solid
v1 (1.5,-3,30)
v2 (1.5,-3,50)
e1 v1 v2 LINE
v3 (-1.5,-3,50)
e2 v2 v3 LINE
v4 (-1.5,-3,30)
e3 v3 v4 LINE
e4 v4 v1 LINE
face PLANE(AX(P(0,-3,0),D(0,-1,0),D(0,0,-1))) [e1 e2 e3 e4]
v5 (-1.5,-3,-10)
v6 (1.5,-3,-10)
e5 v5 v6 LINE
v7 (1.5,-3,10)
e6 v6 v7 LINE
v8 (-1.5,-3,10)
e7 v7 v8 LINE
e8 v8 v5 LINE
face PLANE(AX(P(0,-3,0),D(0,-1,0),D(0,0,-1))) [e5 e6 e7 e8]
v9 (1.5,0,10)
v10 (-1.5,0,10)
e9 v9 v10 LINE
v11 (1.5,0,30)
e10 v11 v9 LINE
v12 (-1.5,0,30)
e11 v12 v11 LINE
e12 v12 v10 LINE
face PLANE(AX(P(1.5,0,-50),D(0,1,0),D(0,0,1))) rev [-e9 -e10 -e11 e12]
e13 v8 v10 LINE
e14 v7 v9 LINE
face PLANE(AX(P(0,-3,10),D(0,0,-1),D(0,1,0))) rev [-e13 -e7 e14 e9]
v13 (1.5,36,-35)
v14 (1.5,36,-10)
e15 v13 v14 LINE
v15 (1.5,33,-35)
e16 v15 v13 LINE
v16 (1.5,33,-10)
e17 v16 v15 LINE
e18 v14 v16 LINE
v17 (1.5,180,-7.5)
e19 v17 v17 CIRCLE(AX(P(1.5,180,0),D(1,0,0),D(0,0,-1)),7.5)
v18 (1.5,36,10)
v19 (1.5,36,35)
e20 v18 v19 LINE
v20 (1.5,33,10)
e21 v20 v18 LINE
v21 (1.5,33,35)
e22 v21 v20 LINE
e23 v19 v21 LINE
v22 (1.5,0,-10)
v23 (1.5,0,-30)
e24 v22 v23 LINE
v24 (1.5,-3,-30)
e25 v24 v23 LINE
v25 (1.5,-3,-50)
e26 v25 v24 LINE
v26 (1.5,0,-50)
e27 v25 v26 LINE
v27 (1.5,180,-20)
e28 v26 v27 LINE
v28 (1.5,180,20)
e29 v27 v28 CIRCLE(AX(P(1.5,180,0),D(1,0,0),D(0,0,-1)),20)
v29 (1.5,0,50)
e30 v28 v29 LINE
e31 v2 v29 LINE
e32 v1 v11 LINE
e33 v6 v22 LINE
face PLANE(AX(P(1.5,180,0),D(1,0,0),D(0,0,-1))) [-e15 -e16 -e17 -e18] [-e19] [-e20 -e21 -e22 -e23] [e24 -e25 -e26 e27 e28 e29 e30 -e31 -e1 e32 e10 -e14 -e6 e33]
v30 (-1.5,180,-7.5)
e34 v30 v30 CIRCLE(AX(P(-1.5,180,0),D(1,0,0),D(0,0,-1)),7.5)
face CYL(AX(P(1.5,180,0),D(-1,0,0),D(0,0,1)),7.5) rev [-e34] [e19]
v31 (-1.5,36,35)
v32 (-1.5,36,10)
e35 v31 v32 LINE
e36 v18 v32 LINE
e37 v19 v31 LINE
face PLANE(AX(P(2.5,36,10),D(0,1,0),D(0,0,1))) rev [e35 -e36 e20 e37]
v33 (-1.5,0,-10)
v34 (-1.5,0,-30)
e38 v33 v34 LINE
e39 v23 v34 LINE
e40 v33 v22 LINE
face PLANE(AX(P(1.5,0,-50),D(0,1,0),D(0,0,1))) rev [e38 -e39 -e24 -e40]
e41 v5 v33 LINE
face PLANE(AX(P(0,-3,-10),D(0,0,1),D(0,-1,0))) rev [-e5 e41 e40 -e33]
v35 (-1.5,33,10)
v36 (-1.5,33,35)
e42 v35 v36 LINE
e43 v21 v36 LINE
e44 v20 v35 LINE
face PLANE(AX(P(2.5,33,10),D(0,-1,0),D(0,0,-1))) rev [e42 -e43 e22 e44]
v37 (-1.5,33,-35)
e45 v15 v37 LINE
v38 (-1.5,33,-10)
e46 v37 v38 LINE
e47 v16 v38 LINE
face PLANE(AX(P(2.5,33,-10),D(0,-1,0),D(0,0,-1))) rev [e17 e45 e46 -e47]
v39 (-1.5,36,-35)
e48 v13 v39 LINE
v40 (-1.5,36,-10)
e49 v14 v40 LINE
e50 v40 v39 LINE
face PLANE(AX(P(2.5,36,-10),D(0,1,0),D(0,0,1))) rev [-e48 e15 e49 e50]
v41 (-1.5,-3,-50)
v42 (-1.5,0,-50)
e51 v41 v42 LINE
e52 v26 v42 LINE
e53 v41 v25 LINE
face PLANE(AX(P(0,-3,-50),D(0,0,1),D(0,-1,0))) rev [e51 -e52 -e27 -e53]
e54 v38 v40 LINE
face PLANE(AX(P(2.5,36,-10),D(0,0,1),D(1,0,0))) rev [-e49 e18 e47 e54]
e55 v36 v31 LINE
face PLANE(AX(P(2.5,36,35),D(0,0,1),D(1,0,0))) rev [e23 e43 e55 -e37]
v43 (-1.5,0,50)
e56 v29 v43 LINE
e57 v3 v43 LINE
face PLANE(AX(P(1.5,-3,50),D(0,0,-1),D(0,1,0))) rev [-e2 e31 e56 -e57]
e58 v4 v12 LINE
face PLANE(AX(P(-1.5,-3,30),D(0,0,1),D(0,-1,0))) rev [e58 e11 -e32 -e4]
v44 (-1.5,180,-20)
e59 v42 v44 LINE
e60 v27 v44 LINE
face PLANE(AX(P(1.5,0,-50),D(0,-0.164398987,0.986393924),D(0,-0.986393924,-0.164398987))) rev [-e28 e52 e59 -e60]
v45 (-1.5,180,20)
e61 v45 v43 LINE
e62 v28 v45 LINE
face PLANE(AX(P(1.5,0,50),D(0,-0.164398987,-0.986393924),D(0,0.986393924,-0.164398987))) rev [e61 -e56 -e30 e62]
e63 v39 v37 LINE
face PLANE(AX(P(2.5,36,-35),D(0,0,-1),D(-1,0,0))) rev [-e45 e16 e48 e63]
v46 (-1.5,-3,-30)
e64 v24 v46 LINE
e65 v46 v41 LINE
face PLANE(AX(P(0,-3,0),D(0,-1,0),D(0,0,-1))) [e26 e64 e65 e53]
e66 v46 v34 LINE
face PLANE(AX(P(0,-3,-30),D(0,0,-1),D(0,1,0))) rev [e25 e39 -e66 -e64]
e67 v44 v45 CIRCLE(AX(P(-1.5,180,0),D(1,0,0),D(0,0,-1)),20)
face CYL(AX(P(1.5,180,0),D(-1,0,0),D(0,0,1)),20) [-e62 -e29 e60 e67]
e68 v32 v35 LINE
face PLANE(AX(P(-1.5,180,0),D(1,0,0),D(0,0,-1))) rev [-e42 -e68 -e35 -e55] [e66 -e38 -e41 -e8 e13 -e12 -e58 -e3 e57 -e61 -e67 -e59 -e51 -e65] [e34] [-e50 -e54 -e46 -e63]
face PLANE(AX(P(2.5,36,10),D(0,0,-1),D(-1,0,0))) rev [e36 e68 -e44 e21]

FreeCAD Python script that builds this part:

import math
import FreeCAD as App
import Part
import Sketcher
from FreeCAD import Vector
Q = App.Units.Quantity

doc = App.newDocument("Part")
body = doc.addObject("PartDesign::Body", "Body")

sketch1 = doc.addObject("Sketcher::SketchObject", "Sketch")
body.addObject(sketch1)
sketch1.AttachmentSupport = (doc.YZ_Plane, [""])
sketch1.MapMode = "FlatFace"
sketch1.addGeometry([
    Part.LineSegment(Vector(0, 50, 0), Vector(0, -50, 0)),
    Part.LineSegment(Vector(0, -50, 0), Vector(180, -20, 0)),
    Part.ArcOfCircle(Part.Circle(Vector(180, 0, 0), Vector(0, 0, 1), 20), math.radians(-90), math.radians(90)),
    Part.LineSegment(Vector(180, 20, 0), Vector(0, 50, 0)),
    Part.Circle(Vector(180, 0, 0), Vector(0, 0, 1), 8),
], False)
sketch1.addConstraint([
    Sketcher.Constraint("Coincident", 0, 2, 1, 1),
    Sketcher.Constraint("Coincident", 1, 2, 2, 1),
    Sketcher.Constraint("Coincident", 2, 2, 3, 1),
    Sketcher.Constraint("Coincident", 3, 2, 0, 1),
    Sketcher.Constraint("Vertical", 0),
    Sketcher.Constraint("Coincident", 4, 3, 2, 3),
    Sketcher.Constraint("Symmetric", 0, 2, 3, 2, -1, 1),
    Sketcher.Constraint("Symmetric", 1, 2, 2, 2, -1),
    Sketcher.Constraint("Vertical", 4, 3, 1, 2),
    Sketcher.Constraint("Diameter", 4, Q("15 mm")),
    Sketcher.Constraint("Radius", 2, Q("20 mm")),
    Sketcher.Constraint("DistanceY", 0, 2, 0, 1, Q("100 mm")),
    Sketcher.Constraint("DistanceX", -1, 1, 2, 3, Q("180 mm")),
])
pad1 = doc.addObject("PartDesign::Pad", "Pad")
body.addObject(pad1)
pad1.Profile = sketch1
pad1.Length = 3
pad1.Midplane = True

sketch2 = doc.addObject("Sketcher::SketchObject", "Sketch001")
body.addObject(sketch2)
sketch2.AttachmentSupport = (doc.YZ_Plane, [""])
sketch2.MapMode = "FlatFace"
sketch2.AttachmentOffset = App.Placement(Vector(0, 0, -1.5), App.Rotation())
sketch2.addGeometry([
    Part.LineSegment(Vector(36, 10, 0), Vector(33, 10, 0)),
    Part.LineSegment(Vector(33, 10, 0), Vector(33, 35, 0)),
    Part.LineSegment(Vector(33, 35, 0), Vector(36, 35, 0)),
    Part.LineSegment(Vector(36, 35, 0), Vector(36, 10, 0)),
    Part.LineSegment(Vector(36, -35, 0), Vector(33, -35, 0)),
    Part.LineSegment(Vector(33, -35, 0), Vector(33, -10, 0)),
    Part.LineSegment(Vector(33, -10, 0), Vector(36, -10, 0)),
    Part.LineSegment(Vector(36, -10, 0), Vector(36, -35, 0)),
], False)
sketch2.addConstraint([
    Sketcher.Constraint("Coincident", 0, 2, 1, 1),
    Sketcher.Constraint("Coincident", 1, 2, 2, 1),
    Sketcher.Constraint("Coincident", 2, 2, 3, 1),
    Sketcher.Constraint("Coincident", 3, 2, 0, 1),
    Sketcher.Constraint("Coincident", 4, 2, 5, 1),
    Sketcher.Constraint("Coincident", 5, 2, 6, 1),
    Sketcher.Constraint("Coincident", 6, 2, 7, 1),
    Sketcher.Constraint("Coincident", 7, 2, 4, 1),
    Sketcher.Constraint("Horizontal", 0),
    Sketcher.Constraint("Vertical", 1),
    Sketcher.Constraint("Horizontal", 2),
    Sketcher.Constraint("Vertical", 3),
    Sketcher.Constraint("Horizontal", 4),
    Sketcher.Constraint("Vertical", 5),
    Sketcher.Constraint("Horizontal", 6),
    Sketcher.Constraint("Vertical", 7),
    Sketcher.Constraint("Symmetric", 1, 2, 4, 2, -1),
    Sketcher.Constraint("Symmetric", 3, 2, 6, 2, -1),
    Sketcher.Constraint("DistanceX", 0, 2, 0, 1, Q("3 mm")),
    Sketcher.Constraint("DistanceY", 1, 1, 1, 2, Q("25 mm")),
    Sketcher.Constraint("DistanceX", -1, 1, 0, 2, Q("33 mm")),
    Sketcher.Constraint("DistanceY", -1, 1, 0, 2, Q("10 mm")),
])
pocket1 = doc.addObject("PartDesign::Pocket", "Pocket")
body.addObject(pocket1)
pocket1.Profile = sketch2
pocket1.Length = 4
pocket1.Reversed = True

sketch3 = doc.addObject("Sketcher::SketchObject", "Sketch002")
body.addObject(sketch3)
sketch3.AttachmentSupport = (doc.XZ_Plane, [""])
sketch3.MapMode = "FlatFace"
sketch3.addGeometry([
    Part.LineSegment(Vector(-1.5, 10, 0), Vector(-1.5, -10, 0)),
    Part.LineSegment(Vector(-1.5, -10, 0), Vector(1.5, -10, 0)),
    Part.LineSegment(Vector(1.5, -10, 0), Vector(1.5, 10, 0)),
    Part.LineSegment(Vector(1.5, 10, 0), Vector(-1.5, 10, 0)),
    Part.LineSegment(Vector(-1.5, -30, 0), Vector(-1.5, -50, 0)),
    Part.LineSegment(Vector(-1.5, -50, 0), Vector(1.5, -50, 0)),
    Part.LineSegment(Vector(1.5, -50, 0), Vector(1.5, -30, 0)),
    Part.LineSegment(Vector(1.5, -30, 0), Vector(-1.5, -30, 0)),
    Part.LineSegment(Vector(-1.5, 50, 0), Vector(-1.5, 30, 0)),
    Part.LineSegment(Vector(-1.5, 30, 0), Vector(1.5, 30, 0)),
    Part.LineSegment(Vector(1.5, 30, 0), Vector(1.5, 50, 0)),
    Part.LineSegment(Vector(1.5, 50, 0), Vector(-1.5, 50, 0)),
], False)
sketch3.addConstraint([
    Sketcher.Constraint("Coincident", 0, 2, 1, 1),
    Sketcher.Constraint("Coincident", 1, 2, 2, 1),
    Sketcher.Constraint("Coincident", 2, 2, 3, 1),
    Sketcher.Constraint("Coincident", 3, 2, 0, 1),
    Sketcher.Constraint("Coincident", 4, 2, 5, 1),
    Sketcher.Constraint("Coincident", 5, 2, 6, 1),
    Sketcher.Constraint("Coincident", 6, 2, 7, 1),
    Sketcher.Constraint("Coincident", 7, 2, 4, 1),
    Sketcher.Constraint("Coincident", 8, 2, 9, 1),
    Sketcher.Constraint("Coincident", 9, 2, 10, 1),
    Sketcher.Constraint("Coincident", 10, 2, 11, 1),
    Sketcher.Constraint("Coincident", 11, 2, 8, 1),
    Sketcher.Constraint("Vertical", 0),
    Sketcher.Constraint("Horizontal", 1),
    Sketcher.Constraint("Vertical", 2),
    Sketcher.Constraint("Horizontal", 3),
    Sketcher.Constraint("Vertical", 4),
    Sketcher.Constraint("Horizontal", 5),
    Sketcher.Constraint("Vertical", 6),
    Sketcher.Constraint("Horizontal", 7),
    Sketcher.Constraint("Vertical", 8),
    Sketcher.Constraint("Horizontal", 9),
    Sketcher.Constraint("Vertical", 10),
    Sketcher.Constraint("Horizontal", 11),
    Sketcher.Constraint("Symmetric", 0, 2, 2, 2, -1, 1),
    Sketcher.Constraint("Symmetric", 6, 2, 8, 2, -1, 1),
    Sketcher.Constraint("Symmetric", 4, 2, 10, 2, -1, 1),
    Sketcher.Constraint("Vertical", 3, 2, 4, 2),
    Sketcher.Constraint("Vertical", 2, 2, 5, 2),
    Sketcher.Constraint("Equal", 2, 4),
    Sketcher.Constraint("DistanceX", 1, 1, 1, 2, Q("3 mm")),
    Sketcher.Constraint("DistanceY", 0, 2, 0, 1, Q("20 mm")),
    Sketcher.Constraint("DistanceY", 4, 2, -1, 1, Q("50 mm")),
])
pad2 = doc.addObject("PartDesign::Pad", "Pad001")
body.addObject(pad2)
pad2.Profile = sketch3
pad2.Length = 3

doc.recompute()
